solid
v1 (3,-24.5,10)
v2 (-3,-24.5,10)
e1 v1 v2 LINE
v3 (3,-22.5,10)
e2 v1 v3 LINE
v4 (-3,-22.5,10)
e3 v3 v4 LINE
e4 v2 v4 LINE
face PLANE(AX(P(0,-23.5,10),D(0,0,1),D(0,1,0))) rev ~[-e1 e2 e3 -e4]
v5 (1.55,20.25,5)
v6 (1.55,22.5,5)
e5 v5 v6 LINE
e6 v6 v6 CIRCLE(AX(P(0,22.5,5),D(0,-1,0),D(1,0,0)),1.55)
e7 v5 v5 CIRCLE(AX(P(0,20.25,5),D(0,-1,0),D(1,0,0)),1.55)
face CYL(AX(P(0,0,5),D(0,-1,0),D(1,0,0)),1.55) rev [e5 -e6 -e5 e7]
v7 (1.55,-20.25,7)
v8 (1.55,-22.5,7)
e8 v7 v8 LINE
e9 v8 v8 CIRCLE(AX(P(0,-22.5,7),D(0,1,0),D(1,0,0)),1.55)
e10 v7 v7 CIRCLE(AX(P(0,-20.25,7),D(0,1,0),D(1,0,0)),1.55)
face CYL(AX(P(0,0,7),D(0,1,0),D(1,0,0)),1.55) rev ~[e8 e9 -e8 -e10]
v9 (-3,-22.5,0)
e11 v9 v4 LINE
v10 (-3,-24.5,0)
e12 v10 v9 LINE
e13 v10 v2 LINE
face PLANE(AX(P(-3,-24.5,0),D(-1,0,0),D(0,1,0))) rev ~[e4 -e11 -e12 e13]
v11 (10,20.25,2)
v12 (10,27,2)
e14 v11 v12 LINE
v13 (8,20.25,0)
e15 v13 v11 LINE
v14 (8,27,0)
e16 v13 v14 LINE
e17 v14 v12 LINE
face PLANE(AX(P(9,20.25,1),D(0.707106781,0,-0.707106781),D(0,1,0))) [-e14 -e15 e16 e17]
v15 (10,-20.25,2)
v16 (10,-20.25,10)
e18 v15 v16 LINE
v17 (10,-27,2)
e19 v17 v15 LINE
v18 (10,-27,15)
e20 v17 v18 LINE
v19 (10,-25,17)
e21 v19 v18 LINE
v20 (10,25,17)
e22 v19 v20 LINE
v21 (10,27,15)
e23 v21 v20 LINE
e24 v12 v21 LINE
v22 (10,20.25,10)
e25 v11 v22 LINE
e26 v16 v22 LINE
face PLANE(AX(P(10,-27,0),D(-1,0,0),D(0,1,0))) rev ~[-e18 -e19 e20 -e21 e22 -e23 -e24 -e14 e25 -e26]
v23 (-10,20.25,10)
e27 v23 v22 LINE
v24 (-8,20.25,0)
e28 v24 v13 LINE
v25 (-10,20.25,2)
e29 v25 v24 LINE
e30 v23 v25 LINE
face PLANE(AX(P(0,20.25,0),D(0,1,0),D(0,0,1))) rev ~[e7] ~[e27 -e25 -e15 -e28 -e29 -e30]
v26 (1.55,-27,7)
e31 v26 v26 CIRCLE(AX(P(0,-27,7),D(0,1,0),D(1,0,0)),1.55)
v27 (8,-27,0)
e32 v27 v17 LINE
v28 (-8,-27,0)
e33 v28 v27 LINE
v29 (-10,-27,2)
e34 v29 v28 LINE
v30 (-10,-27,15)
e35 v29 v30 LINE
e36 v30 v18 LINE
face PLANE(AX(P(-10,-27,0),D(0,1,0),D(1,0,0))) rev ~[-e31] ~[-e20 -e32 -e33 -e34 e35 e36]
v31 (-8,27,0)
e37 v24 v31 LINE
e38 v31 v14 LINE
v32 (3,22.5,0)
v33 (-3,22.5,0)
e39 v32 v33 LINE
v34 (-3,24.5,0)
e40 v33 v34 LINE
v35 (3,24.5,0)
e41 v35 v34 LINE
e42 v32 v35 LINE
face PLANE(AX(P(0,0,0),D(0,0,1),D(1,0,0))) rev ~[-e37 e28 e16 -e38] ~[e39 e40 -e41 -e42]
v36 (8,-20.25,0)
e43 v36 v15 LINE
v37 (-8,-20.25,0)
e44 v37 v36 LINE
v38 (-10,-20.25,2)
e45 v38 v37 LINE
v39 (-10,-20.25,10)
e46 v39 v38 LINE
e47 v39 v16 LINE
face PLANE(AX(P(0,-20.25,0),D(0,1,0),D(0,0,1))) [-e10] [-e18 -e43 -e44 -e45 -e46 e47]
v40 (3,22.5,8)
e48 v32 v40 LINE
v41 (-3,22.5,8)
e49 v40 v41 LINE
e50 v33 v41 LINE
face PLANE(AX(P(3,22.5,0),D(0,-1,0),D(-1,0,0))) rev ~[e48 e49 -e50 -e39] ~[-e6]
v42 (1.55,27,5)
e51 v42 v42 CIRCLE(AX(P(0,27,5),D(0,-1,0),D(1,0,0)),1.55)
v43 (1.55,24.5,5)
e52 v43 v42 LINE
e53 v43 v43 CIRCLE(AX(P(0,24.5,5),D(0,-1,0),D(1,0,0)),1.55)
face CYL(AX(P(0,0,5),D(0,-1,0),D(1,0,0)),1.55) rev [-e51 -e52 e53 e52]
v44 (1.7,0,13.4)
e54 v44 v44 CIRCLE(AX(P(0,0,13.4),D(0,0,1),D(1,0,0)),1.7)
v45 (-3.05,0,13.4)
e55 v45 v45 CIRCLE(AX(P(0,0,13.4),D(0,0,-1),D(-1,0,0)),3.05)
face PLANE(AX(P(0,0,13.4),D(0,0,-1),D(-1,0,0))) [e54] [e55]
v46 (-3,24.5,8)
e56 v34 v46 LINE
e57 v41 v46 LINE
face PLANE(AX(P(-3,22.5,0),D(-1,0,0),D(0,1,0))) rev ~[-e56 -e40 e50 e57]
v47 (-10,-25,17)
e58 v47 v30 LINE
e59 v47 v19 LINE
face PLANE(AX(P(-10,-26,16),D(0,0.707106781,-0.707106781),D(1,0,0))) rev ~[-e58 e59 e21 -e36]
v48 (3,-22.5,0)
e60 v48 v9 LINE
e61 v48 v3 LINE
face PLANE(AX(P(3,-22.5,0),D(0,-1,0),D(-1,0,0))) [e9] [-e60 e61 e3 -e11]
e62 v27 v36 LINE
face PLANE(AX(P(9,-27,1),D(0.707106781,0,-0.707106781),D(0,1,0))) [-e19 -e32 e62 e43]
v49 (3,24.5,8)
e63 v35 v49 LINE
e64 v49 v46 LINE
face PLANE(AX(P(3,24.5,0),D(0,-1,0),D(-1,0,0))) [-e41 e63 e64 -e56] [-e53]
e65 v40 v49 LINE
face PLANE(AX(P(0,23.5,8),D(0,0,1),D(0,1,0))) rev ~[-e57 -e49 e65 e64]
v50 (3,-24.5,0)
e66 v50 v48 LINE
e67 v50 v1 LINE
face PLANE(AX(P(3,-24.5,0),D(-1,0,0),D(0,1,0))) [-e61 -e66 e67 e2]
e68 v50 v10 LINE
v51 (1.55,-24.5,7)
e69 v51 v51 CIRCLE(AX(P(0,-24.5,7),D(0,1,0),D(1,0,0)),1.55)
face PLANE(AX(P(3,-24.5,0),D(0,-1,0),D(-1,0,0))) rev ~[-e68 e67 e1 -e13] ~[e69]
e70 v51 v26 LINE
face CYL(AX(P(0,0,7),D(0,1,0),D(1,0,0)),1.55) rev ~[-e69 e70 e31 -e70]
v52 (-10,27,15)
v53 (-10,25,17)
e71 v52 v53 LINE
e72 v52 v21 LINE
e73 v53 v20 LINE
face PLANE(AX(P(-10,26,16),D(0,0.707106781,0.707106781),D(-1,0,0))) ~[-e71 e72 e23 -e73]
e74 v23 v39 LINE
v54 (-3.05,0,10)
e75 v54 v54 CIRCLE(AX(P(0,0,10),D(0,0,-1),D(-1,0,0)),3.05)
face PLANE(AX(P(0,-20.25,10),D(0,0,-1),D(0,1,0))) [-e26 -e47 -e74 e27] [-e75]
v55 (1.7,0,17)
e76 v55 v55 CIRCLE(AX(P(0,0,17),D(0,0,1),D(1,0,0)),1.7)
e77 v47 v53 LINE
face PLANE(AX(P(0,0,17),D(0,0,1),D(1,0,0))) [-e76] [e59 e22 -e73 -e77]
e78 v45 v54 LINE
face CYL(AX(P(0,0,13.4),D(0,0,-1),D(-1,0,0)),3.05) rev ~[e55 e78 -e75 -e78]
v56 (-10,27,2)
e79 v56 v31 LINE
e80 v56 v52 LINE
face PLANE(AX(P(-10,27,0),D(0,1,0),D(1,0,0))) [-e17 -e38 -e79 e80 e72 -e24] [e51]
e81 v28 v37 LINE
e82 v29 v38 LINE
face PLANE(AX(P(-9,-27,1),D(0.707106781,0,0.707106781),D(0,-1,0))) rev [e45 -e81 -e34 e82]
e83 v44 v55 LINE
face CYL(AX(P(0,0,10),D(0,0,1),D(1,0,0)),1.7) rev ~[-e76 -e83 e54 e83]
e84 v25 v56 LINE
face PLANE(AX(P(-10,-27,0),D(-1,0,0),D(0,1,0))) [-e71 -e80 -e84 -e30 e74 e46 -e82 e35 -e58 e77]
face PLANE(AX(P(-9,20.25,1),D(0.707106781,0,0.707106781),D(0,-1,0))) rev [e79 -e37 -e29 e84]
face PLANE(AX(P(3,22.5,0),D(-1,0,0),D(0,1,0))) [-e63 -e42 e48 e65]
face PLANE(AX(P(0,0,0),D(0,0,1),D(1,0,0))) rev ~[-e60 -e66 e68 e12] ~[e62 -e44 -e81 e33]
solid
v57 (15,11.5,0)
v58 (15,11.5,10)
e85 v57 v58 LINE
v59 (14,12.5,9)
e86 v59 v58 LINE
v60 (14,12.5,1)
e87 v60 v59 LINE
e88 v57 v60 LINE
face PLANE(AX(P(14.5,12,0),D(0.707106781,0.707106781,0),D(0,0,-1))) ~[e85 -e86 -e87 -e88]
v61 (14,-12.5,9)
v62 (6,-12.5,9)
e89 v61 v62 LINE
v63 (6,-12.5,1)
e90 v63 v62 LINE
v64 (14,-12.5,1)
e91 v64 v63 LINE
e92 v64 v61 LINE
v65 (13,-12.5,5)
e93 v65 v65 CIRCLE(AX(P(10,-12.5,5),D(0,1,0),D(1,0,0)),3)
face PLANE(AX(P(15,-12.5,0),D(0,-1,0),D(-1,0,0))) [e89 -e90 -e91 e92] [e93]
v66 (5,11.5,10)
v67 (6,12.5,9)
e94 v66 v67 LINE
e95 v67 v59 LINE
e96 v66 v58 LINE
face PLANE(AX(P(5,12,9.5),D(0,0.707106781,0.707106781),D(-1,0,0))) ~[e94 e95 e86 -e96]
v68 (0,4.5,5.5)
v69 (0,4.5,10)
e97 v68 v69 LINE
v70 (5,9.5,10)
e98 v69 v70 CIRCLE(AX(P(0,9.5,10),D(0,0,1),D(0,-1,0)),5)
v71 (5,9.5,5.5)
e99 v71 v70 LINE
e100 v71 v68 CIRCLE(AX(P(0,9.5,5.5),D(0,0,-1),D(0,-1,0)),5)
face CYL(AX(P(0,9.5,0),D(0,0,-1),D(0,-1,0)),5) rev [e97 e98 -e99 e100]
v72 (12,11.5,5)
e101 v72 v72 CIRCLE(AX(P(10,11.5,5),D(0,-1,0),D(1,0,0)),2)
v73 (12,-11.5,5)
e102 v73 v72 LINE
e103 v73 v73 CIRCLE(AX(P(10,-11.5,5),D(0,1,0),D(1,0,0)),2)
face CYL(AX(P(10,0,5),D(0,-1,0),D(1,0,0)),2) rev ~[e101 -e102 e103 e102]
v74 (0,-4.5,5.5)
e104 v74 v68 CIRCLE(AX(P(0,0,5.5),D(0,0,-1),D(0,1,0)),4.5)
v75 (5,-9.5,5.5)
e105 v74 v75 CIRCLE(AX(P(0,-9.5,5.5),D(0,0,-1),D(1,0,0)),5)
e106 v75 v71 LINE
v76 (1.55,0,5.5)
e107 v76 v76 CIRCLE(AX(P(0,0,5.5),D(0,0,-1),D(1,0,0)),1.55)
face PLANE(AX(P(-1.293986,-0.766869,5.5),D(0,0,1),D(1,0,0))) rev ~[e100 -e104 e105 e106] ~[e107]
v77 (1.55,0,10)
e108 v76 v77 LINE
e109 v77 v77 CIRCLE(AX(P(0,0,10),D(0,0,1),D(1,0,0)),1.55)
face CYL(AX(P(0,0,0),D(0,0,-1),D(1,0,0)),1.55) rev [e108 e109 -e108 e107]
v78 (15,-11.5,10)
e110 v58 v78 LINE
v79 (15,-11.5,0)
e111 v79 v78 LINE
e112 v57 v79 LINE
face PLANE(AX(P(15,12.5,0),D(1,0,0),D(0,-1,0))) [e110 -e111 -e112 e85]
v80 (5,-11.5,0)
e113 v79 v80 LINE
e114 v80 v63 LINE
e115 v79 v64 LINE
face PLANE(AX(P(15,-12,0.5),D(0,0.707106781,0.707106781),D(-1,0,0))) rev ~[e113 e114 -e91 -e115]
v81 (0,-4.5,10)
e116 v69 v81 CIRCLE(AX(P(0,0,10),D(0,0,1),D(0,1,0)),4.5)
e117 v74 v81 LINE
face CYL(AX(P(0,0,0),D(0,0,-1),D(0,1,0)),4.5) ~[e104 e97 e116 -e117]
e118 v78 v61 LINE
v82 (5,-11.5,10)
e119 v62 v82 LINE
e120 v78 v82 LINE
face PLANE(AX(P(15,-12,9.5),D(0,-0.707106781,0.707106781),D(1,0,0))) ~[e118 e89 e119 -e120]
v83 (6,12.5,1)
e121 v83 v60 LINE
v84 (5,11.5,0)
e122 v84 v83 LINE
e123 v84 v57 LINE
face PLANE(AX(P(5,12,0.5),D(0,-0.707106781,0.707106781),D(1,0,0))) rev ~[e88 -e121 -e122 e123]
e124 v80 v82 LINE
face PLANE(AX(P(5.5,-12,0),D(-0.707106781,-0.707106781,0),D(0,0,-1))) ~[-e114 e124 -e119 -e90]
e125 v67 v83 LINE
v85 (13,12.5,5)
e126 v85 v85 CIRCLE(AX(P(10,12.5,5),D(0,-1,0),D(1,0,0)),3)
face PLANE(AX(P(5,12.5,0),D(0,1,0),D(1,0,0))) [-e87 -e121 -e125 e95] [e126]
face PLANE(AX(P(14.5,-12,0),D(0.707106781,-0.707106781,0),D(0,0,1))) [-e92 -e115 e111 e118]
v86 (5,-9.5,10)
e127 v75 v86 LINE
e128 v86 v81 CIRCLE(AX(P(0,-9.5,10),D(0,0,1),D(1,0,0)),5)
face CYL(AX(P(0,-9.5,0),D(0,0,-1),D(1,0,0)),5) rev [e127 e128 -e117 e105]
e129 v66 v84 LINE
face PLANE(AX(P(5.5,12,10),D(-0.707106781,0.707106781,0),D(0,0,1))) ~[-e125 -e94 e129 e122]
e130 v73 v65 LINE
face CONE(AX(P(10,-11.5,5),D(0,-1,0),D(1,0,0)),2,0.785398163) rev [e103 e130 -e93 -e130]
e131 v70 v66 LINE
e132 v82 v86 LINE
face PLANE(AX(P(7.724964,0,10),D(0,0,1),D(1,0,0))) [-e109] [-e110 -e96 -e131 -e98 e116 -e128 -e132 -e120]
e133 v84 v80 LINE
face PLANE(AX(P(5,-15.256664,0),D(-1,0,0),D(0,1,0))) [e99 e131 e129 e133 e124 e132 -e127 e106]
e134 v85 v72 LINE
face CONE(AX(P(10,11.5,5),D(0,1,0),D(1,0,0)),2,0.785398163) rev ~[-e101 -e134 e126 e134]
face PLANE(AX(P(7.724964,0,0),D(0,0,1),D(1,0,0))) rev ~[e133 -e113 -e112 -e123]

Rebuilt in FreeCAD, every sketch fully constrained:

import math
import FreeCAD as App
import Part
import Sketcher


def edges_at(feature, points):
    """Names of the edges that pass closest to the given points."""
    edges = feature.Shape.Edges
    near = lambda p: min(range(len(edges)), key=lambda i: edges[i].distToShape(Part.Vertex(*p))[0])
    return sorted({f"Edge{near(p) + 1}" for p in points})


def add_polygon(sketch, points):
    """Adds a closed chain of lines whose ends are joined by coincident constraints."""
    first, n = sketch.GeometryCount, len(points)
    for a, b in zip(points, points[1:] + points[:1]):
        sketch.addGeometry(Part.LineSegment(App.Vector(*a, 0), App.Vector(*b, 0)), False)
    for i in range(n):
        sketch.addConstraint(Sketcher.Constraint("Coincident", first + i, 2, first + (i + 1) % n, 1))

doc = App.newDocument("Part")
body = doc.addObject("PartDesign::Body", "Body")

sketch1 = body.newObject("Sketcher::SketchObject", "Sketch")
sketch1.AttachmentSupport = (doc.getObject("XY_Plane"), [""])
sketch1.MapMode = "FlatFace"
add_polygon(sketch1, [(-10, 27), (-10, -27), (10, -27), (10, 27)])
sketch1.addConstraint([
    Sketcher.Constraint("Vertical", 0),
    Sketcher.Constraint("Horizontal", 1),
    Sketcher.Constraint("Vertical", 2),
    Sketcher.Constraint("Horizontal", 3),
    Sketcher.Constraint("Symmetric", 0, 2, 2, 2, -1, 1),
    Sketcher.Constraint("DistanceX", 1, 1, 1, 2, 20.0),
    Sketcher.Constraint("DistanceY", 0, 2, 0, 1, 54.0),
])
pad1 = body.newObject("PartDesign::Pad", "Pad")
pad1.Profile = sketch1
pad1.Length = 17

sketch2 = body.newObject("Sketcher::SketchObject", "Sketch001")
sketch2.AttachmentSupport = (doc.getObject("YZ_Plane"), [""])
sketch2.MapMode = "FlatFace"
add_polygon(sketch2, [(-20, 10), (-20, 0), (20, 0), (20, 10)])
sketch2.addConstraint([
    Sketcher.Constraint("Vertical", 0),
    Sketcher.Constraint("Horizontal", 1),
    Sketcher.Constraint("Vertical", 2),
    Sketcher.Constraint("Horizontal", 3),
    Sketcher.Constraint("Symmetric", 0, 2, 1, 2, -1, 1),
    Sketcher.Constraint("DistanceY", 0, 2, 0, 1, 10.0),
    Sketcher.Constraint("DistanceX", 1, 1, 1, 2, 40.5),
])
pocket1 = body.newObject("PartDesign::Pocket", "Pocket")
pocket1.Profile = sketch2
pocket1.Type = "ThroughAll"
pocket1.Midplane = True

sketch3 = body.newObject("Sketcher::SketchObject", "Sketch002")
sketch3.AttachmentSupport = (doc.getObject("XY_Plane"), [""])
sketch3.MapMode = "FlatFace"
sketch3.AttachmentOffset = App.Placement(App.Vector(0, 0, 10), App.Rotation())
sketch3.addGeometry(Part.Circle(App.Vector(0, 0, 0), App.Vector(0, 0, 1), 1.7), False)
sketch3.addConstraint([
    Sketcher.Constraint("Coincident", 0, 3, -1, 1),
    Sketcher.Constraint("Diameter", 0, 3.4),
])
doc.recompute()
hole = body.newObject("PartDesign::Hole", "Hole")
hole.Profile = sketch3
hole.ThreadType = "None"
hole.Diameter = 3.4
hole.DepthType = "ThroughAll"
hole.HoleCutType = "Counterbore"
hole.HoleCutDiameter = 6.1
hole.HoleCutDepth = 3.4
hole.Reversed = True

sketch4 = body.newObject("Sketcher::SketchObject", "Sketch003")
sketch4.AttachmentSupport = (doc.getObject("XY_Plane"), [""])
sketch4.MapMode = "FlatFace"
add_polygon(sketch4, [(-3, -24.5), (3, -24.5), (3, -22.5), (-3, -22.5)])
sketch4.addConstraint([
    Sketcher.Constraint("Horizontal", 0),
    Sketcher.Constraint("Vertical", 1),
    Sketcher.Constraint("Horizontal", 2),
    Sketcher.Constraint("Vertical", 3),
    Sketcher.Constraint("DistanceX", 0, 1, 0, 2, 6.0),
    Sketcher.Constraint("DistanceY", 1, 1, 1, 2, 2.0),
    Sketcher.Constraint("DistanceX", -1, 1, 0, 2, 3.0),
    Sketcher.Constraint("DistanceY", 0, 2, -1, 1, 24.5),
])
pocket2 = body.newObject("PartDesign::Pocket", "Pocket001")
pocket2.Profile = sketch4
pocket2.Length = 10
pocket2.Reversed = True

sketch5 = body.newObject("Sketcher::SketchObject", "Sketch004")
sketch5.AttachmentSupport = (doc.getObject("XY_Plane"), [""])
sketch5.MapMode = "FlatFace"
add_polygon(sketch5, [(-3, 22.5), (3, 22.5), (3, 24.5), (-3, 24.5)])
sketch5.addConstraint([
    Sketcher.Constraint("Horizontal", 0),
    Sketcher.Constraint("Vertical", 1),
    Sketcher.Constraint("Horizontal", 2),
    Sketcher.Constraint("Vertical", 3),
    Sketcher.Constraint("DistanceX", 0, 1, 0, 2, 6.0),
    Sketcher.Constraint("DistanceY", 1, 1, 1, 2, 2.0),
    Sketcher.Constraint("DistanceX", -1, 1, 0, 2, 3.0),
    Sketcher.Constraint("DistanceY", -1, 1, 0, 2, 22.5),
])
pocket3 = body.newObject("PartDesign::Pocket", "Pocket002")
pocket3.Profile = sketch5
pocket3.Length = 8
pocket3.Reversed = True

sketch6 = body.newObject("Sketcher::SketchObject", "Sketch005")
sketch6.AttachmentSupport = (doc.getObject("XZ_Plane"), [""])
sketch6.MapMode = "FlatFace"
sketch6.addGeometry(Part.Circle(App.Vector(0, 5, 0), App.Vector(0, 0, 1), 1.6), False)
sketch6.addConstraint([
    Sketcher.Constraint("PointOnObject", 0, 3, -2),
    Sketcher.Constraint("Diameter", 0, 3.1),
    Sketcher.Constraint("DistanceY", -1, 1, 0, 3, 5.0),
])
pocket4 = body.newObject("PartDesign::Pocket", "Pocket003")
pocket4.Profile = sketch6
pocket4.Type = "ThroughAll"

sketch7 = body.newObject("Sketcher::SketchObject", "Sketch006")
sketch7.AttachmentSupport = (doc.getObject("XZ_Plane"), [""])
sketch7.MapMode = "FlatFace"
sketch7.addGeometry(Part.Circle(App.Vector(0, 7, 0), App.Vector(0, 0, 1), 1.6), False)
sketch7.addConstraint([
    Sketcher.Constraint("PointOnObject", 0, 3, -2),
    Sketcher.Constraint("Diameter", 0, 3.1),
    Sketcher.Constraint("DistanceY", -1, 1, 0, 3, 7.0),
])
pocket5 = body.newObject("PartDesign::Pocket", "Pocket004")
pocket5.Profile = sketch7
pocket5.Type = "ThroughAll"
pocket5.Reversed = True
doc.recompute()

chamfer = body.newObject("PartDesign::Chamfer", "Chamfer")
chamfer.Base = (pocket5, edges_at(pocket5, [
    (-10, 23.625, 0),
    (10, 23.625, 0),
    (-10, -23.625, 0),
    (10, -23.625, 0),
    (0, 27, 17),
    (0, -27, 17),
]))
chamfer.Size = 2
body2 = doc.addObject("PartDesign::Body", "Body001")

sketch8 = body2.newObject("Sketcher::SketchObject", "Sketch007")
sketch8.AttachmentSupport = (doc.getObject("XY_Plane001"), [""])
sketch8.MapMode = "FlatFace"
sketch8.addGeometry([
    Part.ArcOfCircle(Part.Circle(App.Vector(0, 0, 0), App.Vector(0, 0, 1), 4.5), math.radians(90), math.radians(270)),
    Part.ArcOfCircle(Part.Circle(App.Vector(0, -9.5, 0), App.Vector(0, 0, 1), 5), math.radians(0), math.radians(90)),
    Part.LineSegment(App.Vector(5, -9.5, 0), App.Vector(5, -12.5, 0)),
    Part.LineSegment(App.Vector(5, -12.5, 0), App.Vector(15, -12.5, 0)),
    Part.LineSegment(App.Vector(15, -12.5, 0), App.Vector(15, 12.5, 0)),
    Part.LineSegment(App.Vector(15, 12.5, 0), App.Vector(5, 12.5, 0)),
    Part.LineSegment(App.Vector(5, 12.5, 0), App.Vector(5, 9.5, 0)),
    Part.ArcOfCircle(Part.Circle(App.Vector(0, 9.5, 0), App.Vector(0, 0, 1), 5), math.radians(-90), math.radians(0)),
    Part.Circle(App.Vector(0, 0, 0), App.Vector(0, 0, 1), 1.6),
], False)
sketch8.addConstraint([
    Sketcher.Constraint("Tangent", 0, 2, 1, 2),
    Sketcher.Constraint("Tangent", 1, 1, 2, 1),
    Sketcher.Constraint("Coincident", 2, 2, 3, 1),
    Sketcher.Constraint("Coincident", 3, 2, 4, 1),
    Sketcher.Constraint("Coincident", 4, 2, 5, 1),
    Sketcher.Constraint("Coincident", 5, 2, 6, 1),
    Sketcher.Constraint("Tangent", 6, 2, 7, 2),
    Sketcher.Constraint("Tangent", 7, 1, 0, 1),
    Sketcher.Constraint("Vertical", 2),
    Sketcher.Constraint("Horizontal", 3),
    Sketcher.Constraint("Vertical", 4),
    Sketcher.Constraint("Horizontal", 5),
    Sketcher.Constraint("Vertical", 6),
    Sketcher.Constraint("Coincident", 0, 3, -1, 1),
    Sketcher.Constraint("Coincident", 8, 3, -1, 1),
    Sketcher.Constraint("Equal", 1, 7),
    Sketcher.Constraint("Symmetric", 2, 2, 5, 2, -1),
    Sketcher.Constraint("PointOnObject", 1, 3, -2),
    Sketcher.Constraint("Radius", 1, 5.0),
    Sketcher.Constraint("Diameter", 8, 3.1),
    Sketcher.Constraint("Radius", 0, 4.5),
    Sketcher.Constraint("DistanceX", 3, 1, 3, 2, 10.0),
    Sketcher.Constraint("DistanceY", 2, 2, 2, 1, 3.0),
])
pad2 = body2.newObject("PartDesign::Pad", "Pad001")
pad2.Profile = sketch8
pad2.Length = 10

sketch9 = body2.newObject("Sketcher::SketchObject", "Sketch008")
sketch9.AttachmentSupport = (doc.getObject("XY_Plane001"), [""])
sketch9.MapMode = "FlatFace"
add_polygon(sketch9, [(-8, 14), (-8, -15), (5, -15), (5, 14)])
sketch9.addConstraint([
    Sketcher.Constraint("Vertical", 0),
    Sketcher.Constraint("Horizontal", 1),
    Sketcher.Constraint("Vertical", 2),
    Sketcher.Constraint("Horizontal", 3),
    Sketcher.Constraint("DistanceX", -1, 1, 1, 2, 5.0),
    Sketcher.Constraint("DistanceY", 0, 2, 0, 1, 28.979589),
    Sketcher.Constraint("DistanceX", 1, 1, 1, 2, 12.587973),
    Sketcher.Constraint("DistanceY", 0, 2, -1, 1, 15.256664),
])
pocket6 = body2.newObject("PartDesign::Pocket", "Pocket005")
pocket6.Profile = sketch9
pocket6.Length = 5.5
pocket6.Reversed = True

sketch10 = body2.newObject("Sketcher::SketchObject", "Sketch009")
sketch10.AttachmentSupport = (doc.getObject("XZ_Plane001"), [""])
sketch10.MapMode = "FlatFace"
sketch10.addGeometry(Part.Circle(App.Vector(10, 5, 0), App.Vector(0, 0, 1), 2), False)
sketch10.addConstraint([
    Sketcher.Constraint("Diameter", 0, 4.0),
    Sketcher.Constraint("DistanceX", -1, 1, 0, 3, 10.0),
    Sketcher.Constraint("DistanceY", -1, 1, 0, 3, 5.0),
])
pocket7 = body2.newObject("PartDesign::Pocket", "Pocket006")
pocket7.Profile = sketch10
pocket7.Type = "ThroughAll"
pocket7.Midplane = True
doc.recompute()

chamfer2 = body2.newObject("PartDesign::Chamfer", "Chamfer001")
chamfer2.Base = (pocket7, edges_at(pocket7, [
    (5, 12.5, 5),
    (10, 12.5, 0),
    (10, 12.5, 10),
    (15, 12.5, 5),
    (8, 12.5, 5),
    (15, -12.5, 5),
    (10, -12.5, 0),
    (10, -12.5, 10),
    (5, -12.5, 5),
    (8, -12.5, 5),
]))
chamfer2.Size = 1

doc.recompute()
